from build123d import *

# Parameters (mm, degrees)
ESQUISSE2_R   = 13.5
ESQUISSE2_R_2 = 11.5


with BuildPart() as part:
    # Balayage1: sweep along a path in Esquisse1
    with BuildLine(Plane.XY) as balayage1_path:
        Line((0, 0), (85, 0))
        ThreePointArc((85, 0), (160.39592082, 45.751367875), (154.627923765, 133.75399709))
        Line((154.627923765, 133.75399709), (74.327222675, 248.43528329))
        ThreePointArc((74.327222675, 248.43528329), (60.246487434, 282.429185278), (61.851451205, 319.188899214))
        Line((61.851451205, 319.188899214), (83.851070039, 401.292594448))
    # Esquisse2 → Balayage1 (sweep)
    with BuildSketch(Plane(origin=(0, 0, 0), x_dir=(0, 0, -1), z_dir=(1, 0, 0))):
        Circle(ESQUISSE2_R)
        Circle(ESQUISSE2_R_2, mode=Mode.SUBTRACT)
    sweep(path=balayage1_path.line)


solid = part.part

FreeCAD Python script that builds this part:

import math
import FreeCAD as App
import Part
import Sketcher

V = App.Vector
Q = App.Units.Quantity

doc = App.newDocument("Part")
body = doc.addObject("PartDesign::Body", "Body")

sketch1 = body.newObject("Sketcher::SketchObject", "Sketch")
sketch1.AttachmentSupport = (doc.getObject("YZ_Plane"), [""])
sketch1.MapMode = "FlatFace"
sketch1.addGeometry([
    Part.Circle(V(0, 0, 0), V(0, 0, 1), 14),
    Part.Circle(V(0, 0, 0), V(0, 0, 1), 12),
], False)
sketch1.addConstraint([
    Sketcher.Constraint("Coincident", 0, 3, -1, 1),
    Sketcher.Constraint("Coincident", 1, 3, -1, 1),
    Sketcher.Constraint("Diameter", 0, Q("27 mm")),
    Sketcher.Constraint("Diameter", 1, Q("23 mm")),
])

sketch2 = body.newObject("Sketcher::SketchObject", "Sketch001")
sketch2.AttachmentSupport = (doc.getObject("XY_Plane"), [""])
sketch2.MapMode = "FlatFace"
sketch2.addGeometry([
    Part.LineSegment(V(0, 0, 0), V(85, 0, 0)),
    Part.ArcOfCircle(Part.Circle(V(85, 85, 0), V(0, 0, 1), 85), math.radians(-90), math.radians(35)),
    Part.LineSegment(V(155, 134, 0), V(74, 248, 0)),
    Part.ArcOfCircle(Part.Circle(V(144, 297, 0), V(0, 0, 1), 85), math.radians(165), math.radians(215)),
    Part.LineSegment(V(62, 319, 0), V(84, 401, 0)),
], False)
sketch2.addConstraint([
    Sketcher.Constraint("Tangent", 0, 2, 1, 1),
    Sketcher.Constraint("Tangent", 1, 2, 2, 1),
    Sketcher.Constraint("Tangent", 2, 2, 3, 2),
    Sketcher.Constraint("Tangent", 3, 1, 4, 1),
    Sketcher.Constraint("Horizontal", 0),
    Sketcher.Constraint("Coincident", 0, 1, -1, 1),
    Sketcher.Constraint("Equal", 1, 3),
    Sketcher.Constraint("Radius", 1, Q("85 mm")),
    Sketcher.Constraint("DistanceX", 0, 1, 0, 2, Q("85 mm")),
    Sketcher.Constraint("Angle", 2, Q("125 deg")),
    Sketcher.Constraint("Angle", 4, Q("75 deg")),
    Sketcher.Constraint("Distance", 2, Q("140 mm")),
    Sketcher.Constraint("Distance", 4, Q("85 mm")),
])
doc.recompute()

additivepipe = body.newObject("PartDesign::AdditivePipe", "AdditivePipe")
additivepipe.Profile = sketch1
additivepipe.Spine = (sketch2, ["Edge1", "Edge2", "Edge3", "Edge4", "Edge5"])

doc.recompute()
